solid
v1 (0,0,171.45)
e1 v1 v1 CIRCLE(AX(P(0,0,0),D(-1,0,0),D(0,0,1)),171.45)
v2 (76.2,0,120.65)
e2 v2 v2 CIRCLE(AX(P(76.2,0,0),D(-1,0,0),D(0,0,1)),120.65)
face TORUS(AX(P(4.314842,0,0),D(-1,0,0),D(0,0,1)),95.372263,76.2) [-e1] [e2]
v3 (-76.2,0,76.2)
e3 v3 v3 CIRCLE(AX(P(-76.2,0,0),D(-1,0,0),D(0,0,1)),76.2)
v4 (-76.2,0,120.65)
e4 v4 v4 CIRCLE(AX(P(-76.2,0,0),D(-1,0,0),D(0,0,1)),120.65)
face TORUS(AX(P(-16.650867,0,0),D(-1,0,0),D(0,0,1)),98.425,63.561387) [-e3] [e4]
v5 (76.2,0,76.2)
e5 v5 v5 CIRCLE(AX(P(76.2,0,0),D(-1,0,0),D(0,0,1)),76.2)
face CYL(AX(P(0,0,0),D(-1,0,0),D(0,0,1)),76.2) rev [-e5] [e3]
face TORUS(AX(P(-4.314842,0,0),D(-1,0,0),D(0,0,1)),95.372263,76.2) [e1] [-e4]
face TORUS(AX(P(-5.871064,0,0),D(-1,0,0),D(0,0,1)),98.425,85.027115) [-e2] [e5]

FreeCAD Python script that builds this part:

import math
import FreeCAD as App
import Part
import Sketcher
Q = App.Units.Quantity

doc = App.newDocument("Part")
body = doc.addObject("PartDesign::Body", "Body")

sketch1 = doc.addObject("Sketcher::SketchObject", "Sketch")
body.addObject(sketch1)
sketch1.AttachmentSupport = (doc.XY_Plane, [""])
sketch1.MapMode = "FlatFace"
sketch1.addGeometry([
    Part.LineSegment(App.Vector(-76.2, 76.2, 0), App.Vector(76.2, 76.2, 0)),
    Part.ArcOfCircle(Part.Circle(App.Vector(-5.871064, 98.425, 0), App.Vector(0, 0, 1), 85.027115), math.radians(-15.15239), math.radians(15.15239)),
    Part.ArcOfCircle(Part.Circle(App.Vector(4.314842, 95.372263, 0), App.Vector(0, 0, 1), 76.2), math.radians(19.373743), math.radians(93.246122)),
    Part.ArcOfCircle(Part.Circle(App.Vector(-4.314842, 95.372263, 0), App.Vector(0, 0, 1), 76.2), math.radians(86.753878), math.radians(160.626257)),
    Part.ArcOfCircle(Part.Circle(App.Vector(-16.650867, 98.425, 0), App.Vector(0, 0, 1), 63.561387), math.radians(159.533359), math.radians(200.466641)),
], False)
sketch1.addConstraint([
    Sketcher.Constraint("Coincident", 0, 2, 1, 1),
    Sketcher.Constraint("Coincident", 1, 2, 2, 1),
    Sketcher.Constraint("Coincident", 2, 2, 3, 1),
    Sketcher.Constraint("Coincident", 3, 2, 4, 1),
    Sketcher.Constraint("Coincident", 4, 2, 0, 1),
    Sketcher.Constraint("Horizontal", 0),
    Sketcher.Constraint("Equal", 2, 3),
    Sketcher.Constraint("Symmetric", 2, 3, 3, 3, -2),
    Sketcher.Constraint("Horizontal", 1, 3, 4, 3),
    Sketcher.Constraint("Horizontal", 1, 2, 3, 2),
    Sketcher.Constraint("Vertical", 0, 2, 1, 2),
    Sketcher.Constraint("Radius", 2, Q("3 in")),
    Sketcher.Constraint("DistanceX", 0, 1, 0, 2, Q("6 in")),
    Sketcher.Constraint("DistanceY", -1, 1, 0, 2, Q("3 in")),
    Sketcher.Constraint("DistanceY", 1, 2, 2, 2, Q("2 in")),
    Sketcher.Constraint("DistanceY", -1, 1, 1, 2, Q("4.75 in")),
    Sketcher.Constraint("Radius", 1, Q("85.027115 mm")),
    Sketcher.Constraint("Radius", 4, Q("63.561387 mm")),
])
revolution = doc.addObject("PartDesign::Revolution", "Revolution")
body.addObject(revolution)
revolution.Profile = sketch1
revolution.ReferenceAxis = (sketch1, ["H_Axis"])
revolution.Angle = 360

doc.recompute()
